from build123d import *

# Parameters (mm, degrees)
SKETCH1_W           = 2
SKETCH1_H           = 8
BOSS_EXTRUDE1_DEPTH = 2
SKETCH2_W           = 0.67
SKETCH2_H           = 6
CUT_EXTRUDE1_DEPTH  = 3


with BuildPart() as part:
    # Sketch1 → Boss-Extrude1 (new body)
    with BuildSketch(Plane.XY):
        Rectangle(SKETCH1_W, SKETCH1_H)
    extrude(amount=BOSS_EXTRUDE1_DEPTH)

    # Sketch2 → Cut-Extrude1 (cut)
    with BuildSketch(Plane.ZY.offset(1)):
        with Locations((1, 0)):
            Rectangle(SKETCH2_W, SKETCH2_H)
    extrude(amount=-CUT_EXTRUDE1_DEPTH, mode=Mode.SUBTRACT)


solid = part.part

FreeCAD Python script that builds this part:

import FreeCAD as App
import Part
import Sketcher
from FreeCAD import Vector

doc = App.newDocument("Part")
body = doc.addObject("PartDesign::Body", "Body")

# Sketch on XY plane
sketch1 = body.newObject("Sketcher::SketchObject", "Sketch")
sketch1.AttachmentSupport = (doc.getObject("XY_Plane"), [""])
sketch1.MapMode = "FlatFace"
sketch1.addGeometry([
    Part.LineSegment(Vector(-1, 4, 0), Vector(-1, -4, 0)),
    Part.LineSegment(Vector(-1, -4, 0), Vector(1, -4, 0)),
    Part.LineSegment(Vector(1, -4, 0), Vector(1, 4, 0)),
    Part.LineSegment(Vector(1, 4, 0), Vector(-1, 4, 0)),
], False)
sketch1.addConstraint([
    Sketcher.Constraint("Coincident", 0, 2, 1, 1),
    Sketcher.Constraint("Coincident", 1, 2, 2, 1),
    Sketcher.Constraint("Coincident", 2, 2, 3, 1),
    Sketcher.Constraint("Coincident", 3, 2, 0, 1),
    Sketcher.Constraint("Vertical", 0),
    Sketcher.Constraint("Horizontal", 1),
    Sketcher.Constraint("Vertical", 2),
    Sketcher.Constraint("Horizontal", 3),
    Sketcher.Constraint("Symmetric", 0, 2, 2, 2, -1, 1),
    Sketcher.Constraint("DistanceX", 1, 1, 1, 2, 2.0),
    Sketcher.Constraint("DistanceY", 0, 2, 0, 1, 8.0),
])
pad1 = body.newObject("PartDesign::Pad", "Pad")
pad1.Profile = sketch1
pad1.Length = 2

# Sketch on YZ plane
sketch2 = body.newObject("Sketcher::SketchObject", "Sketch001")
sketch2.AttachmentSupport = (doc.getObject("YZ_Plane"), [""])
sketch2.MapMode = "FlatFace"
sketch2.AttachmentOffset = App.Placement(Vector(0, 0, -1), App.Rotation())
sketch2.addGeometry([
    Part.LineSegment(Vector(3, 0.665, 0), Vector(-3, 0.665, 0)),
    Part.LineSegment(Vector(-3, 0.665, 0), Vector(-3, 1.335, 0)),
    Part.LineSegment(Vector(-3, 1.335, 0), Vector(3, 1.335, 0)),
    Part.LineSegment(Vector(3, 1.335, 0), Vector(3, 0.665, 0)),
], False)
sketch2.addConstraint([
    Sketcher.Constraint("Coincident", 0, 2, 1, 1),
    Sketcher.Constraint("Coincident", 1, 2, 2, 1),
    Sketcher.Constraint("Coincident", 2, 2, 3, 1),
    Sketcher.Constraint("Coincident", 3, 2, 0, 1),
    Sketcher.Constraint("Horizontal", 0),
    Sketcher.Constraint("Vertical", 1),
    Sketcher.Constraint("Horizontal", 2),
    Sketcher.Constraint("Vertical", 3),
    Sketcher.Constraint("DistanceX", 0, 2, 0, 1, 6.0),
    Sketcher.Constraint("DistanceX", 0, 2, -1, 1, 3.0),
    Sketcher.Constraint("DistanceY", 1, 1, 1, 2, 0.67),
    Sketcher.Constraint("DistanceY", -1, 1, 0, 2, 0.665),
])
pocket1 = body.newObject("PartDesign::Pocket", "Pocket")
pocket1.Profile = sketch2
pocket1.Length = 3
pocket1.Reversed = True

doc.recompute()
